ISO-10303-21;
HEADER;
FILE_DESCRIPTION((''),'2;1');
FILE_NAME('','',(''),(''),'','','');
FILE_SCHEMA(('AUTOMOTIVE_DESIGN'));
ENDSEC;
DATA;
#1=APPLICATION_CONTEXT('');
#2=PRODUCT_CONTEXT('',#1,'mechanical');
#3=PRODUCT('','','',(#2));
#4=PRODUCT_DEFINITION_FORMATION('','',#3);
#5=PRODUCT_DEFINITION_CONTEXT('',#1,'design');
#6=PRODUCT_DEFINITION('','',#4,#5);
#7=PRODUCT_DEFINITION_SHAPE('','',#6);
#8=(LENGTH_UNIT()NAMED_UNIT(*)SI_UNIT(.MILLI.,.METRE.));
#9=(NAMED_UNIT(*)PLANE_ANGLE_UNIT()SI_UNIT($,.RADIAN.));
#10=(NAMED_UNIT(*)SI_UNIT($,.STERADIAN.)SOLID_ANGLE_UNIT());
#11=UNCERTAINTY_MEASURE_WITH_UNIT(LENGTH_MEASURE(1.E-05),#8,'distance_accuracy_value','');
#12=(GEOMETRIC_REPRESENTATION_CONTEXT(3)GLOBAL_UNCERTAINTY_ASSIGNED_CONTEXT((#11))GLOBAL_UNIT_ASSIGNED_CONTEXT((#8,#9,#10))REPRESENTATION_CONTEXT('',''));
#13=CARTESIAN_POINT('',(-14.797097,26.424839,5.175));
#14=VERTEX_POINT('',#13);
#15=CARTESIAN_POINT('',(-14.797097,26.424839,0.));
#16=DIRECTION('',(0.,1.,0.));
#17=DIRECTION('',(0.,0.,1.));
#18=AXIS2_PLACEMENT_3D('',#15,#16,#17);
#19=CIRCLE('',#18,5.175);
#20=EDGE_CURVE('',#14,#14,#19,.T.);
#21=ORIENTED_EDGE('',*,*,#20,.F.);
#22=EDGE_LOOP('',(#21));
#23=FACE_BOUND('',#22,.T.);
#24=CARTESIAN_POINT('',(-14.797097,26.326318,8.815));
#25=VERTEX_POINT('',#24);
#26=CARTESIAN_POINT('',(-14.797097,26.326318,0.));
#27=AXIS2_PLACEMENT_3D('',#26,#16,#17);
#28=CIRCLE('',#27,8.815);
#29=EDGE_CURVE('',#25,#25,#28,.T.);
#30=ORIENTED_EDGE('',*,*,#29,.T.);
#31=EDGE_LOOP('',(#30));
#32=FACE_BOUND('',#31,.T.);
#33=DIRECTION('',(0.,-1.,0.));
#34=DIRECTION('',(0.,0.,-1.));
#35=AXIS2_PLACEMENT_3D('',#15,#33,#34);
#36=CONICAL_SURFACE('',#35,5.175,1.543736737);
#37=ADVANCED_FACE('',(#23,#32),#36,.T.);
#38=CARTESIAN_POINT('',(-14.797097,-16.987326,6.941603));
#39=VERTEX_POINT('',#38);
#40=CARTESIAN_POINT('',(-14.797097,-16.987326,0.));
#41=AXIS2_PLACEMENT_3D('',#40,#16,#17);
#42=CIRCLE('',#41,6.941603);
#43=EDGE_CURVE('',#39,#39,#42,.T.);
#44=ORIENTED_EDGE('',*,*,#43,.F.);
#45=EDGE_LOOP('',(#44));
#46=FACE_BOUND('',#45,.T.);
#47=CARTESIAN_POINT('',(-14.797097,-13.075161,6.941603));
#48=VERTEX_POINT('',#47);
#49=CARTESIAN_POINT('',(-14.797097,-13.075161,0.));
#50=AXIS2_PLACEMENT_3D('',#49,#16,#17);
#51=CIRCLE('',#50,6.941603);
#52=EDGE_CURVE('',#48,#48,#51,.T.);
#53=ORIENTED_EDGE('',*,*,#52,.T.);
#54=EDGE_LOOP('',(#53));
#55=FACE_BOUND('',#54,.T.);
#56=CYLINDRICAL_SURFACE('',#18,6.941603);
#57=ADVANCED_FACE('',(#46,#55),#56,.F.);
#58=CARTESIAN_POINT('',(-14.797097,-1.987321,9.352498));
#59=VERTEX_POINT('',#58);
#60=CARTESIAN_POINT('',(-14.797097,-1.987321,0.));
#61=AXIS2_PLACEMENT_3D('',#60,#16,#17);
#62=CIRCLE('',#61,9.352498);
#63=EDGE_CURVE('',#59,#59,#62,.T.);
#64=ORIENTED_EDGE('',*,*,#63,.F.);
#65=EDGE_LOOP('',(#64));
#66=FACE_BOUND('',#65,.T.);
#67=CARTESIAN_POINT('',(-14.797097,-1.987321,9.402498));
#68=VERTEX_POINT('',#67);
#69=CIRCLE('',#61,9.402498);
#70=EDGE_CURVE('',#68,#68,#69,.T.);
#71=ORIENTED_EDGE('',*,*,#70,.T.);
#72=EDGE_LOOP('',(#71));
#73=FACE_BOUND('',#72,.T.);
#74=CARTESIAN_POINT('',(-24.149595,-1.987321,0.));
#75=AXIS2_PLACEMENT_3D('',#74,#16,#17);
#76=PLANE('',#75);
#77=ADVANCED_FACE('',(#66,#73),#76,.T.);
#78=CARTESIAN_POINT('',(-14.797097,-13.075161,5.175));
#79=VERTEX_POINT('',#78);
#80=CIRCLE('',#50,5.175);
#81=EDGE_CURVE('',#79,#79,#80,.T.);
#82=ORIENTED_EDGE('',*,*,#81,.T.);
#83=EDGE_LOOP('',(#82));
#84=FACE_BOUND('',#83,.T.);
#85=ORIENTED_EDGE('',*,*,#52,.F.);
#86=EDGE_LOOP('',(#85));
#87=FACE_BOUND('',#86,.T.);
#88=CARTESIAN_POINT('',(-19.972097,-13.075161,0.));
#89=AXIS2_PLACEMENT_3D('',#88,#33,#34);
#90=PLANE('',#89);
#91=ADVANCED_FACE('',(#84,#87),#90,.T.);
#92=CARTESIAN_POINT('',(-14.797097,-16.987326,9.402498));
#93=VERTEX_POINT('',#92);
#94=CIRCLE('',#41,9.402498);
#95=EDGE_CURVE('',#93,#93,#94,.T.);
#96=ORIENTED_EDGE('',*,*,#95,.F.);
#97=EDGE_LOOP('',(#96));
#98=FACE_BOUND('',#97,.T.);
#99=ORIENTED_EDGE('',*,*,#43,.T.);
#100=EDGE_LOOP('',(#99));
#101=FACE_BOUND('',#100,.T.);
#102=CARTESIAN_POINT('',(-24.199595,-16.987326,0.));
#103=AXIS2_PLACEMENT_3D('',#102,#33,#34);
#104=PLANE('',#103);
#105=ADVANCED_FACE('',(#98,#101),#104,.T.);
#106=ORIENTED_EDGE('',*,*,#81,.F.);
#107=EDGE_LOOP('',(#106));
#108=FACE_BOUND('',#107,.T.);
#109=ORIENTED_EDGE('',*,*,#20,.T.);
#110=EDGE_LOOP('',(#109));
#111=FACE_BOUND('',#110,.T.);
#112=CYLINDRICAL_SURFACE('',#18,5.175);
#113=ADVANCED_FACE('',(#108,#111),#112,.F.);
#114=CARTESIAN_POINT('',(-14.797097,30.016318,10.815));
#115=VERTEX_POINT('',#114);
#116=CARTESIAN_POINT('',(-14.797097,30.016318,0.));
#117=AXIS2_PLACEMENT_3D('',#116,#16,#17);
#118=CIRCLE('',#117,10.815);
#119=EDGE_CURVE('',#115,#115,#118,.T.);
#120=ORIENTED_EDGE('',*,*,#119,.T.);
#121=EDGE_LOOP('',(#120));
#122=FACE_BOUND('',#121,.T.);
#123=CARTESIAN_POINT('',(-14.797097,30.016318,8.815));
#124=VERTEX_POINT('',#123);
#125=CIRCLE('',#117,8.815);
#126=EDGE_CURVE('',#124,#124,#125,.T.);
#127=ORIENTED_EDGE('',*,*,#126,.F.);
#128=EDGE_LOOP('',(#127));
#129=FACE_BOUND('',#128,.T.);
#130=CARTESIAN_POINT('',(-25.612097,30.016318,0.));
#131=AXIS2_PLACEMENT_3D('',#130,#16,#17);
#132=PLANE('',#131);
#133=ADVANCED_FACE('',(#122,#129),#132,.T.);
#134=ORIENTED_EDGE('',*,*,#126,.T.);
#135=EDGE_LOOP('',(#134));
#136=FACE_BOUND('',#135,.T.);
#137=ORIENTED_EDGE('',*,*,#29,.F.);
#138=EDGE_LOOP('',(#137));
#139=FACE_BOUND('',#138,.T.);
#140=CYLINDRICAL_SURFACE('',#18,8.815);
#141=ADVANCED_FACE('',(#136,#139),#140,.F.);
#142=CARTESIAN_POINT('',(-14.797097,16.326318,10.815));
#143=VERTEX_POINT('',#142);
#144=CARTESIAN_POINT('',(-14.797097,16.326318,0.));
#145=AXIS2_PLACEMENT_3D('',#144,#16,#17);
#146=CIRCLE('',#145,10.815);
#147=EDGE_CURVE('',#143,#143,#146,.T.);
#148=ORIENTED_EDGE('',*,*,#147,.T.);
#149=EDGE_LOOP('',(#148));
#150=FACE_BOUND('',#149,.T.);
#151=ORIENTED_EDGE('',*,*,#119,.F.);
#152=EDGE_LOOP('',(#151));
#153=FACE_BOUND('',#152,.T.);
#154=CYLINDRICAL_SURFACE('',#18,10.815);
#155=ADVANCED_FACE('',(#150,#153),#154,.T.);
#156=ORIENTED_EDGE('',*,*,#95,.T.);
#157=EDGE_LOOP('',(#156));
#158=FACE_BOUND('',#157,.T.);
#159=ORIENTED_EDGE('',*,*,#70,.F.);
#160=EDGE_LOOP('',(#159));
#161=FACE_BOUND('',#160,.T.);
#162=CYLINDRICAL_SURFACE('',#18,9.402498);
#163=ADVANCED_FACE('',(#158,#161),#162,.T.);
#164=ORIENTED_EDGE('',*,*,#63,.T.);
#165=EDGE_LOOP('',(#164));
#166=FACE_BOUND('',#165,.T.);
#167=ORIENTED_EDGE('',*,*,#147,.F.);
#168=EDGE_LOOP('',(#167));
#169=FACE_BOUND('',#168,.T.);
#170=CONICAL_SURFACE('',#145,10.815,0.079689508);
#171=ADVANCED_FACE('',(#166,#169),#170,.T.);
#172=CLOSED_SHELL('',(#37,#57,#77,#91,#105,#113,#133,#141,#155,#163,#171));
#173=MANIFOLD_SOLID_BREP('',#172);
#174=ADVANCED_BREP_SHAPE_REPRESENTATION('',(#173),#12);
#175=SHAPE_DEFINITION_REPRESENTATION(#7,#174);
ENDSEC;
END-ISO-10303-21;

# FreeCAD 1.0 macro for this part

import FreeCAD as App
import Part
import Sketcher

V = App.Vector
Q = App.Units.Quantity


def add_polygon(sketch, points):
    """Adds a closed chain of lines whose ends are joined by coincident constraints."""
    first, n = sketch.GeometryCount, len(points)
    for a, b in zip(points, points[1:] + points[:1]):
        sketch.addGeometry(Part.LineSegment(App.Vector(*a, 0), App.Vector(*b, 0)), False)
    for i in range(n):
        sketch.addConstraint(Sketcher.Constraint("Coincident", first + i, 2, first + (i + 1) % n, 1))

doc = App.newDocument("Part")
body = doc.addObject("PartDesign::Body", "Body")

# Sketch on XY plane
sketch1 = body.newObject("Sketcher::SketchObject", "Sketch")
sketch1.AttachmentSupport = (doc.getObject("XY_Plane"), [""])
sketch1.MapMode = "FlatFace"
add_polygon(sketch1, [(-21.74, -16.99), (-21.74, -13.08), (-19.97, -13.08), (-19.97, 26.42), (-23.61, 26.33), (-23.61, 30.02), (-25.61, 30.02), (-25.61, 16.33), (-24.15, -1.99), (-24.2, -1.99), (-24.2, -16.99)])  # lines 0-10
sketch1.addGeometry(Part.LineSegment(V(-14.8, 30.02, 0), V(-14.8, -16.99, 0)), True)  # axis
sketch1.addConstraint([
    Sketcher.Constraint("Vertical", 0),
    Sketcher.Constraint("Horizontal", 1),
    Sketcher.Constraint("Vertical", 2),
    Sketcher.Constraint("Vertical", 4),
    Sketcher.Constraint("Horizontal", 5),
    Sketcher.Constraint("Vertical", 6),
    Sketcher.Constraint("Horizontal", 8),
    Sketcher.Constraint("Vertical", 9),
    Sketcher.Constraint("Horizontal", 10),
    Sketcher.Constraint("Vertical", 11),
    Sketcher.Constraint("Horizontal", 5, 2, 11, 1),
    Sketcher.Constraint("Horizontal", 10, 2, 11, 2),
    Sketcher.Constraint("DistanceX", 5, 2, 5, 1, Q("2 mm")),
    Sketcher.Constraint("DistanceY", 2, 1, 2, 2, Q("39.5 mm")),
    Sketcher.Constraint("DistanceY", 6, 2, 3, 2, Q("10 mm")),
    Sketcher.Constraint("DistanceX", 8, 2, 8, 1, Q("0.05 mm")),
    Sketcher.Constraint("DistanceY", 4, 1, 4, 2, Q("3.69 mm")),
    Sketcher.Constraint("DistanceX", 3, 2, 2, 2, Q("3.64 mm")),
    Sketcher.Constraint("DistanceX", 2, 2, 11, 1, Q("5.175 mm")),
    Sketcher.Constraint("DistanceX", 0, 2, -1, 1, Q("21.7387 mm")),
    Sketcher.Constraint("DistanceX", 1, 1, 1, 2, Q("1.766603 mm")),
    Sketcher.Constraint("DistanceX", 10, 1, 10, 2, Q("2.460895 mm")),
    Sketcher.Constraint("DistanceY", 0, 1, 0, 2, Q("3.912165 mm")),
    Sketcher.Constraint("DistanceY", 9, 2, 9, 1, Q("15.000005 mm")),
    Sketcher.Constraint("DistanceY", 11, 2, 11, 1, Q("47.003644 mm")),
    Sketcher.Constraint("DistanceY", 0, 2, -1, 1, Q("13.075161 mm")),
])
revolution = body.newObject("PartDesign::Revolution", "Revolution")
revolution.Profile = sketch1
revolution.ReferenceAxis = (sketch1, ["Axis0"])
revolution.Angle = 360

doc.recompute()
